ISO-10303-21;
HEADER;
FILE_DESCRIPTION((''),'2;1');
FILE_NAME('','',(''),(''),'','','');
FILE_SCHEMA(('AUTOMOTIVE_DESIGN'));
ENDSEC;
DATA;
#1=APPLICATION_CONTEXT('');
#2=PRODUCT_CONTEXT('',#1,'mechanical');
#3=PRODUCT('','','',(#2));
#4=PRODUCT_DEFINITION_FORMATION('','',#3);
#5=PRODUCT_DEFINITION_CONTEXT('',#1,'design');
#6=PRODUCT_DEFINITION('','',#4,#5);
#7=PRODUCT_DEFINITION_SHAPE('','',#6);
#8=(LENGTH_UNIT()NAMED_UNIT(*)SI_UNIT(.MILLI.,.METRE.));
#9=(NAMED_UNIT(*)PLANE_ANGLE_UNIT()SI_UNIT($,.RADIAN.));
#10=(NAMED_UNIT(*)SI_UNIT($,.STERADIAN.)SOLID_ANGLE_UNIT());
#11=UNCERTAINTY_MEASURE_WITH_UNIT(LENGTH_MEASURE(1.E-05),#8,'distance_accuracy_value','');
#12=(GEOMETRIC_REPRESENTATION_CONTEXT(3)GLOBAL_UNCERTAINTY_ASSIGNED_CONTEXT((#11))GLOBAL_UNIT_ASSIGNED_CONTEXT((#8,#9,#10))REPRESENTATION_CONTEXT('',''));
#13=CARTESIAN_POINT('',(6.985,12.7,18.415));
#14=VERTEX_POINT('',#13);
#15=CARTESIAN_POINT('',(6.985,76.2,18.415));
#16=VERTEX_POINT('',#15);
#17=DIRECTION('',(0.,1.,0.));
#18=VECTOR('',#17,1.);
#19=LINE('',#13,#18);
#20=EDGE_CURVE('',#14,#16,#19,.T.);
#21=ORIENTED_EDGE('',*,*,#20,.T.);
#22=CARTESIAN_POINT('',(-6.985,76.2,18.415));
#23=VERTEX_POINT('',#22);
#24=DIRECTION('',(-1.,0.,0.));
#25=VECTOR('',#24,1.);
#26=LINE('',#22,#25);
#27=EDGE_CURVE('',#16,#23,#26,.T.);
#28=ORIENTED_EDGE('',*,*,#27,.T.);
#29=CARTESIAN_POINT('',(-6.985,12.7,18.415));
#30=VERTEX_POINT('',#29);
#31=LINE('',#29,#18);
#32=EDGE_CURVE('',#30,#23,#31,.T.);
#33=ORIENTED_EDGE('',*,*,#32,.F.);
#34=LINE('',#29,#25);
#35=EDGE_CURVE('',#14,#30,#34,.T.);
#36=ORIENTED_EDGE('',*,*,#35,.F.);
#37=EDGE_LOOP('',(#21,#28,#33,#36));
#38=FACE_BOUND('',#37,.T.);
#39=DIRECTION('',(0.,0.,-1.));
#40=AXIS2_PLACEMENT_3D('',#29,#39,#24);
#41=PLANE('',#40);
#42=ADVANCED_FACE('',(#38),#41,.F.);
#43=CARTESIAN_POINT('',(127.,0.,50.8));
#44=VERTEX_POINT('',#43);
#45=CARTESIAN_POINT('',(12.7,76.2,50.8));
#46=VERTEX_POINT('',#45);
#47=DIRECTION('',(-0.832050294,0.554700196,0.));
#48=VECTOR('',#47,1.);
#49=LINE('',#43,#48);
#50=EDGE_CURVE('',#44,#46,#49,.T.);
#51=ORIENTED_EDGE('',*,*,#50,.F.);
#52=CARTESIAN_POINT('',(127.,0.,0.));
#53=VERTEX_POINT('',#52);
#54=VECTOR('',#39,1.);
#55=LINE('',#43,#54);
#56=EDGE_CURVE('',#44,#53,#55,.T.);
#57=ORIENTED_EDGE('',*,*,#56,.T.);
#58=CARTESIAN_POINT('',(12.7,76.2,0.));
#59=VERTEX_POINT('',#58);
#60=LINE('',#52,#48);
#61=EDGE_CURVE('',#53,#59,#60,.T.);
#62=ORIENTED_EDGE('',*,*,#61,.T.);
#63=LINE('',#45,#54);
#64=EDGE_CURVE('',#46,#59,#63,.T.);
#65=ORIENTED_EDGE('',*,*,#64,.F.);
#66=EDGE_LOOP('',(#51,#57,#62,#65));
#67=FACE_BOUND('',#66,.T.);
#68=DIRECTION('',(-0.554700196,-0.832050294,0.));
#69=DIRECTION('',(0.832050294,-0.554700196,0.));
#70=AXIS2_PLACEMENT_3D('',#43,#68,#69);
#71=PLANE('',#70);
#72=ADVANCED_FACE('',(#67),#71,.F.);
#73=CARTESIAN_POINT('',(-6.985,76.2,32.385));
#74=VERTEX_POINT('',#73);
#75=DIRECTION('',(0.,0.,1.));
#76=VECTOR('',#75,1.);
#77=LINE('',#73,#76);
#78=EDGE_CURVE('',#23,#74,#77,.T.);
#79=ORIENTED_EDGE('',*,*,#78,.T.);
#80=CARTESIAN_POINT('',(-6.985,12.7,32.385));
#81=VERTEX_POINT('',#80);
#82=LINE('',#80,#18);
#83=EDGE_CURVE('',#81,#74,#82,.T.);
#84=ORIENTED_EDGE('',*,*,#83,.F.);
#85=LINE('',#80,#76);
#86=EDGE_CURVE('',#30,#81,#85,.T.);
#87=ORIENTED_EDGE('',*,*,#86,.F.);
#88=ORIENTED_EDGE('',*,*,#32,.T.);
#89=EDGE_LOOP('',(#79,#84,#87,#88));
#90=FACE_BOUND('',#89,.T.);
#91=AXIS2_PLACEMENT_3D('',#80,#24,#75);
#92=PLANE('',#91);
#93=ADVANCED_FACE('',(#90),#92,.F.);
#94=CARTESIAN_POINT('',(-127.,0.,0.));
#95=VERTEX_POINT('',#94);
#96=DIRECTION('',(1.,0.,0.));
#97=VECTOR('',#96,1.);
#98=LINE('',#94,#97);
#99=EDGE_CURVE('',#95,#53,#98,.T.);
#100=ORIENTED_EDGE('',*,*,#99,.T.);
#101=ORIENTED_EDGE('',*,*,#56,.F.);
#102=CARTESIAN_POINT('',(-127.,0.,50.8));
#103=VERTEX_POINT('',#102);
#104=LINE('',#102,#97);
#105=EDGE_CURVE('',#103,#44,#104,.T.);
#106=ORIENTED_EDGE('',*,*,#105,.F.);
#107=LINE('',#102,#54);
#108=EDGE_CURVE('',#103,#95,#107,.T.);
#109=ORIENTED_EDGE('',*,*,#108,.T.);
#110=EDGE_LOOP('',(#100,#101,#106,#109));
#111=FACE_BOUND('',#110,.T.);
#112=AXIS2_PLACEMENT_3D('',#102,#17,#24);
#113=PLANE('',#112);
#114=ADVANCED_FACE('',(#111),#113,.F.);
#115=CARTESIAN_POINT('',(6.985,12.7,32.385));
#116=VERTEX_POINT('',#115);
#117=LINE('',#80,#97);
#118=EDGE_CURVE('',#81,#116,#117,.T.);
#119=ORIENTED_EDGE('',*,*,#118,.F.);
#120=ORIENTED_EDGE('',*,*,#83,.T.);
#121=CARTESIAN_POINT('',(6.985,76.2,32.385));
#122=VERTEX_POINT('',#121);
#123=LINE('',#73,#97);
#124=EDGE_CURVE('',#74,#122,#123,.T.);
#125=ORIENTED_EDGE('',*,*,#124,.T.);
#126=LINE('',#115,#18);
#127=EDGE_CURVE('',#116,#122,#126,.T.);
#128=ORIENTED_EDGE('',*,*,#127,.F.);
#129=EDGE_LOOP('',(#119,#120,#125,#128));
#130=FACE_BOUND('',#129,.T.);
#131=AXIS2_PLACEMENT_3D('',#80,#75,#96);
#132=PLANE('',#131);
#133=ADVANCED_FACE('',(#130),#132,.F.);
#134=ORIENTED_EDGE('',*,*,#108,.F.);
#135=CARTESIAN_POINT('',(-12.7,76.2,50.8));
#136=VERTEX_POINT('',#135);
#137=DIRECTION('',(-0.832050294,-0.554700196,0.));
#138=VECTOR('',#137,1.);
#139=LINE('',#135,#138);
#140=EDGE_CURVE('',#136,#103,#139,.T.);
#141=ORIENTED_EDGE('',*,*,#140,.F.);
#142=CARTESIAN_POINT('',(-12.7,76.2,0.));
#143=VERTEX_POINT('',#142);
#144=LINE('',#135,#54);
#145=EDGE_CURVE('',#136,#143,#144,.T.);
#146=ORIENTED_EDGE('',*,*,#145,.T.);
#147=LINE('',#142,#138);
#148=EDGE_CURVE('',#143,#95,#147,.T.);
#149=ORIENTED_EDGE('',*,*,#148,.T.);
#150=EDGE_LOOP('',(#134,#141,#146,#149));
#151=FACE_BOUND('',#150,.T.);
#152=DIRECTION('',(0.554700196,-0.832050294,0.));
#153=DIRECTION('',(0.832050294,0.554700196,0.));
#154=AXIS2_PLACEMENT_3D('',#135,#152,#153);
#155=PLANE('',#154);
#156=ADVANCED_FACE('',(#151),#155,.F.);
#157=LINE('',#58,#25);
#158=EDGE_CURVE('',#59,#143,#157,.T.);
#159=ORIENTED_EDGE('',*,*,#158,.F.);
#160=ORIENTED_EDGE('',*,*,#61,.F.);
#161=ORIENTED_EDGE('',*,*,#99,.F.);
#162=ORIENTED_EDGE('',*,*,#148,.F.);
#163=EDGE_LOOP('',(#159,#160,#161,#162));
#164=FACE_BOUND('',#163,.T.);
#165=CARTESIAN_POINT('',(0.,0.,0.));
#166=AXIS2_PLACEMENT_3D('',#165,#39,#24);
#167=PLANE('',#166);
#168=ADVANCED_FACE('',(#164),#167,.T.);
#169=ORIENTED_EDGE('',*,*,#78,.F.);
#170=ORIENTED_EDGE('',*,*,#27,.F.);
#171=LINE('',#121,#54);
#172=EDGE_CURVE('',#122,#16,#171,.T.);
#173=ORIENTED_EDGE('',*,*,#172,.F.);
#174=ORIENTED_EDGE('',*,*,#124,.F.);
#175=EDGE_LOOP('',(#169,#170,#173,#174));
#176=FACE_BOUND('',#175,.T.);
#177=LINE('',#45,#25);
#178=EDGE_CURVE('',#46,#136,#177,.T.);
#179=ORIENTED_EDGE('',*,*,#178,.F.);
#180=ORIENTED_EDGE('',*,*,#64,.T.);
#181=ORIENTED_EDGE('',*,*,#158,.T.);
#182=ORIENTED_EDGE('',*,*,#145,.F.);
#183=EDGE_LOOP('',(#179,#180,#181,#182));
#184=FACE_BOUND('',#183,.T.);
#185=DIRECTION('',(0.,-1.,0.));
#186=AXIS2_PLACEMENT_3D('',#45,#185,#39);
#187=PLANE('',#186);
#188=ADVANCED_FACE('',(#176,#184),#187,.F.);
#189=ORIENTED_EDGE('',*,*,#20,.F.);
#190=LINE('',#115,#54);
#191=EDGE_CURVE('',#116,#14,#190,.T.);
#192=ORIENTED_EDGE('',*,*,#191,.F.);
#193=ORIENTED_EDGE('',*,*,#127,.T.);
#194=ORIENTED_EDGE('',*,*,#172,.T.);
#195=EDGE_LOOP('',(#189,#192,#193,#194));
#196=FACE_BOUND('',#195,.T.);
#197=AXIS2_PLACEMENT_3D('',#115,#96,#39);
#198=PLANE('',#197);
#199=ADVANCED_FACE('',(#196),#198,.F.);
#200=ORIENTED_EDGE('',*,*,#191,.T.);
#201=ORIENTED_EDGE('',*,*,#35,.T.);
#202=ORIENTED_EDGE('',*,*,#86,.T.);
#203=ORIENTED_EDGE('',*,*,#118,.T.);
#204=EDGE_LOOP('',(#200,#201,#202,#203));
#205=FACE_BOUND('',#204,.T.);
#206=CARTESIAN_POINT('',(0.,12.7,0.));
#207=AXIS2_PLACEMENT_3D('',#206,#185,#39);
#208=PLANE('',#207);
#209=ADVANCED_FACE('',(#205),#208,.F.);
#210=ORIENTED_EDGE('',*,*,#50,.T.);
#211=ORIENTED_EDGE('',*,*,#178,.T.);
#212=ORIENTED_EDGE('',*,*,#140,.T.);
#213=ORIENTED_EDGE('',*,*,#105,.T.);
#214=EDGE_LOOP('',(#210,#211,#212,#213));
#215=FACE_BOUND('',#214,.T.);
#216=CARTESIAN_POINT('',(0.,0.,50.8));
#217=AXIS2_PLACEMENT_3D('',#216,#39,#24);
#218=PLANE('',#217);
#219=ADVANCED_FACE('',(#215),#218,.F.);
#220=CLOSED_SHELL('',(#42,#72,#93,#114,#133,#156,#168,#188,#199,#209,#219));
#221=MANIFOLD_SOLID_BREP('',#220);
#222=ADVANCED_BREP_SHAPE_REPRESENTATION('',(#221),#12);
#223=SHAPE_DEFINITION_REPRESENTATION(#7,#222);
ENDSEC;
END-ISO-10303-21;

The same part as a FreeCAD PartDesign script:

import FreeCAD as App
import Part
import Sketcher
Q = App.Units.Quantity

doc = App.newDocument("Part")
body = doc.addObject("PartDesign::Body", "Body")

# Sketch on XY plane
sketch1 = body.newObject("Sketcher::SketchObject", "Sketch")
sketch1.AttachmentSupport = (doc.getObject("XY_Plane"), [""])
sketch1.MapMode = "FlatFace"
sketch1.addGeometry([
    Part.LineSegment(App.Vector(-127, 0, 0), App.Vector(127, 0, 0)),
    Part.LineSegment(App.Vector(127, 0, 0), App.Vector(13, 76, 0)),
    Part.LineSegment(App.Vector(13, 76, 0), App.Vector(-13, 76, 0)),
    Part.LineSegment(App.Vector(-13, 76, 0), App.Vector(-127, 0, 0)),
], False)
sketch1.addConstraint([
    Sketcher.Constraint("Coincident", 0, 2, 1, 1),
    Sketcher.Constraint("Coincident", 1, 2, 2, 1),
    Sketcher.Constraint("Coincident", 2, 2, 3, 1),
    Sketcher.Constraint("Coincident", 3, 2, 0, 1),
    Sketcher.Constraint("Horizontal", 0),
    Sketcher.Constraint("Horizontal", 2),
    Sketcher.Constraint("Symmetric", 0, 2, 3, 2, -1, 1),
    Sketcher.Constraint("Equal", 1, 3),
    Sketcher.Constraint("DistanceX", 0, 1, 0, 2, Q("10 in")),
    Sketcher.Constraint("DistanceX", 2, 2, 2, 1, Q("1 in")),
    Sketcher.Constraint("DistanceY", -1, 1, 1, 2, Q("3 in")),
])
pad1 = body.newObject("PartDesign::Pad", "Pad")
pad1.Profile = sketch1
pad1.Length = Q("2 in")

# Sketch on XZ plane
sketch2 = body.newObject("Sketcher::SketchObject", "Sketch001")
sketch2.AttachmentSupport = (doc.getObject("XZ_Plane"), [""])
sketch2.MapMode = "FlatFace"
sketch2.AttachmentOffset = App.Placement(App.Vector(0, 0, -3 * 25.4), App.Rotation())
sketch2.addGeometry([
    Part.LineSegment(App.Vector(-7, 18, 0), App.Vector(-7, 32, 0)),
    Part.LineSegment(App.Vector(-7, 32, 0), App.Vector(7, 32, 0)),
    Part.LineSegment(App.Vector(7, 32, 0), App.Vector(7, 18, 0)),
    Part.LineSegment(App.Vector(7, 18, 0), App.Vector(-7, 18, 0)),
], False)
sketch2.addConstraint([
    Sketcher.Constraint("Coincident", 0, 2, 1, 1),
    Sketcher.Constraint("Coincident", 1, 2, 2, 1),
    Sketcher.Constraint("Coincident", 2, 2, 3, 1),
    Sketcher.Constraint("Coincident", 3, 2, 0, 1),
    Sketcher.Constraint("Vertical", 0),
    Sketcher.Constraint("Horizontal", 1),
    Sketcher.Constraint("Vertical", 2),
    Sketcher.Constraint("Horizontal", 3),
    Sketcher.Constraint("Equal", 3, 0),
    Sketcher.Constraint("DistanceX", 1, 1, 1, 2, Q("0.55 in")),
    Sketcher.Constraint("DistanceX", 0, 2, -1, 1, Q("0.275 in")),
    Sketcher.Constraint("DistanceY", -1, 1, 0, 2, Q("1.275 in")),
])
pocket1 = body.newObject("PartDesign::Pocket", "Pocket")
pocket1.Profile = sketch2
pocket1.Length = Q("2.5 in")
pocket1.Reversed = True

doc.recompute()
